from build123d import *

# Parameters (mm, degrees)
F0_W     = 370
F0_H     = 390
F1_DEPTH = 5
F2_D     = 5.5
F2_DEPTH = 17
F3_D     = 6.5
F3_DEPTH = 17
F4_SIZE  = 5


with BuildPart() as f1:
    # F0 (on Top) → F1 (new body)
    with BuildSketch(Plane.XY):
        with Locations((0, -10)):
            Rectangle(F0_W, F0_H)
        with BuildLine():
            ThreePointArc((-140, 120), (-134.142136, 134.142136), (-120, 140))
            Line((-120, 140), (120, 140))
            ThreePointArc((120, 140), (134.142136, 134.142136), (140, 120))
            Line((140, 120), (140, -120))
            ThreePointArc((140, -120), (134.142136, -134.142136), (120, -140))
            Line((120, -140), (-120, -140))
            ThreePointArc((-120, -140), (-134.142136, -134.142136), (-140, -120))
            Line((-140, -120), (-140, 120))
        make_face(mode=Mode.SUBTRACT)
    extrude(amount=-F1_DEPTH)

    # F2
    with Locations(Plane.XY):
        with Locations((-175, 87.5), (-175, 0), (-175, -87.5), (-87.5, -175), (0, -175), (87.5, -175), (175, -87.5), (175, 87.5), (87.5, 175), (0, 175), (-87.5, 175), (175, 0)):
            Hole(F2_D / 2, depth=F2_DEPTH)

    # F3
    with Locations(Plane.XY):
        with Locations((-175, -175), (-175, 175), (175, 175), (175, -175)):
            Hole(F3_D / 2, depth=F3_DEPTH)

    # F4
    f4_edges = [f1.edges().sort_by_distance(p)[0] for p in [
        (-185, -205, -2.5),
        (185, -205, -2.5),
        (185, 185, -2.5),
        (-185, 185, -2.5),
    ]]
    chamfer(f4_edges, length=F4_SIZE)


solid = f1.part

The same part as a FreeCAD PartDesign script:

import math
import FreeCAD as App
import Part
import Sketcher

V = App.Vector
Q = App.Units.Quantity


def edges_at(feature, points):
    """Names of the edges that pass closest to the given points."""
    edges = feature.Shape.Edges
    near = lambda p: min(range(len(edges)), key=lambda i: edges[i].distToShape(Part.Vertex(*p))[0])
    return sorted({f"Edge{near(p) + 1}" for p in points})

doc = App.newDocument("Part")
body = doc.addObject("PartDesign::Body", "Body")

sketch1 = body.newObject("Sketcher::SketchObject", "Sketch")
sketch1.AttachmentSupport = (doc.getObject("XY_Plane"), [""])
sketch1.MapMode = "FlatFace"
sketch1.addGeometry([
    Part.LineSegment(V(-185, 185, 0), V(-185, -205, 0)),
    Part.LineSegment(V(-185, -205, 0), V(185, -205, 0)),
    Part.LineSegment(V(185, -205, 0), V(185, 185, 0)),
    Part.LineSegment(V(185, 185, 0), V(-185, 185, 0)),
    Part.LineSegment(V(-140, -120, 0), V(-140, 120, 0)),
    Part.ArcOfCircle(Part.Circle(V(-120.000001, 120.000001, 0), V(0, 0, 1), 19.999999), math.radians(89.999996), math.radians(180.000004)),
    Part.LineSegment(V(-120, 140, 0), V(120, 140, 0)),
    Part.ArcOfCircle(Part.Circle(V(120.000001, 120.000001, 0), V(0, 0, 1), 19.999999), math.radians(-0.000004), math.radians(90.000004)),
    Part.LineSegment(V(140, 120, 0), V(140, -120, 0)),
    Part.ArcOfCircle(Part.Circle(V(120.000001, -120.000001, 0), V(0, 0, 1), 19.999999), math.radians(-90.000004), math.radians(0.000004)),
    Part.LineSegment(V(120, -140, 0), V(-120, -140, 0)),
    Part.ArcOfCircle(Part.Circle(V(-120.000001, -120.000001, 0), V(0, 0, 1), 19.999999), math.radians(179.999996), math.radians(270.000004)),
], False)
sketch1.addConstraint([
    Sketcher.Constraint("Coincident", 0, 2, 1, 1),
    Sketcher.Constraint("Coincident", 1, 2, 2, 1),
    Sketcher.Constraint("Coincident", 2, 2, 3, 1),
    Sketcher.Constraint("Coincident", 3, 2, 0, 1),
    Sketcher.Constraint("Tangent", 4, 2, 5, 2),
    Sketcher.Constraint("Tangent", 5, 1, 6, 1),
    Sketcher.Constraint("Tangent", 6, 2, 7, 2),
    Sketcher.Constraint("Tangent", 7, 1, 8, 1),
    Sketcher.Constraint("Tangent", 8, 2, 9, 2),
    Sketcher.Constraint("Tangent", 9, 1, 10, 1),
    Sketcher.Constraint("Tangent", 10, 2, 11, 2),
    Sketcher.Constraint("Tangent", 11, 1, 4, 1),
    Sketcher.Constraint("Vertical", 0),
    Sketcher.Constraint("Horizontal", 1),
    Sketcher.Constraint("Vertical", 2),
    Sketcher.Constraint("Horizontal", 3),
    Sketcher.Constraint("Vertical", 4),
    Sketcher.Constraint("Horizontal", 6),
    Sketcher.Constraint("Vertical", 8),
    Sketcher.Constraint("Horizontal", 10),
    Sketcher.Constraint("Equal", 5, 7),
    Sketcher.Constraint("Equal", 7, 9),
    Sketcher.Constraint("Equal", 9, 11),
    Sketcher.Constraint("Symmetric", 5, 3, 9, 3, -1, 1),
    Sketcher.Constraint("Equal", 10, 4),
    Sketcher.Constraint("Radius", 5, Q("19.999999 mm")),
    Sketcher.Constraint("DistanceX", 1, 1, 1, 2, Q("370 mm")),
    Sketcher.Constraint("DistanceX", 6, 1, 6, 2, Q("240 mm")),
    Sketcher.Constraint("DistanceY", 0, 2, 0, 1, Q("390 mm")),
    Sketcher.Constraint("DistanceX", 0, 2, -1, 1, Q("185 mm")),
    Sketcher.Constraint("DistanceY", 0, 2, -1, 1, Q("205 mm")),
])
pad1 = body.newObject("PartDesign::Pad", "Pad")
pad1.Profile = sketch1
pad1.Length = 5
pad1.Reversed = True

sketch2 = body.newObject("Sketcher::SketchObject", "Sketch001")
sketch2.AttachmentSupport = (doc.getObject("XY_Plane"), [""])
sketch2.MapMode = "FlatFace"
sketch2.addGeometry([
    Part.Circle(V(-175, 87.5, 0), V(0, 0, 1), 2.75),
    Part.Circle(V(-175, 0, 0), V(0, 0, 1), 2.75),
    Part.Circle(V(-175, -87.5, 0), V(0, 0, 1), 2.75),
    Part.Circle(V(-87.5, -175, 0), V(0, 0, 1), 2.75),
    Part.Circle(V(0, -175, 0), V(0, 0, 1), 2.75),
    Part.Circle(V(87.5, -175, 0), V(0, 0, 1), 2.75),
    Part.Circle(V(175, -87.5, 0), V(0, 0, 1), 2.75),
    Part.Circle(V(175, 87.5, 0), V(0, 0, 1), 2.75),
    Part.Circle(V(87.5, 175, 0), V(0, 0, 1), 2.75),
    Part.Circle(V(0, 175, 0), V(0, 0, 1), 2.75),
    Part.Circle(V(-87.5, 175, 0), V(0, 0, 1), 2.75),
    Part.Circle(V(175, 0, 0), V(0, 0, 1), 2.75),
], False)
sketch2.addConstraint([
    Sketcher.Constraint("Equal", 0, 1),
    Sketcher.Constraint("Equal", 1, 2),
    Sketcher.Constraint("Equal", 2, 3),
    Sketcher.Constraint("Equal", 3, 4),
    Sketcher.Constraint("Equal", 4, 5),
    Sketcher.Constraint("Equal", 5, 6),
    Sketcher.Constraint("Equal", 6, 7),
    Sketcher.Constraint("Equal", 7, 8),
    Sketcher.Constraint("Equal", 8, 9),
    Sketcher.Constraint("Equal", 9, 10),
    Sketcher.Constraint("Equal", 10, 11),
    Sketcher.Constraint("Symmetric", 0, 3, 6, 3, -1, 1),
    Sketcher.Constraint("Symmetric", 2, 3, 7, 3, -1, 1),
    Sketcher.Constraint("Symmetric", 3, 3, 8, 3, -1, 1),
    Sketcher.Constraint("Symmetric", 4, 3, 9, 3, -1, 1),
    Sketcher.Constraint("Symmetric", 5, 3, 10, 3, -1, 1),
    Sketcher.Constraint("Symmetric", 1, 3, 11, 3, -1, 1),
    Sketcher.Constraint("Symmetric", 3, 3, 5, 3, -2),
    Sketcher.Constraint("Symmetric", 2, 3, 6, 3, -2),
    Sketcher.Constraint("PointOnObject", 1, 3, -1),
    Sketcher.Constraint("PointOnObject", 4, 3, -2),
    Sketcher.Constraint("Horizontal", 3, 3, 4, 3),
    Sketcher.Constraint("Vertical", 0, 3, 1, 3),
    Sketcher.Constraint("Diameter", 0, Q("5.5 mm")),
    Sketcher.Constraint("DistanceX", 0, 3, -1, 1, Q("175 mm")),
    Sketcher.Constraint("DistanceY", 3, 3, -1, 1, Q("175 mm")),
    Sketcher.Constraint("DistanceY", 2, 3, 0, 3, Q("175 mm")),
    Sketcher.Constraint("DistanceX", 3, 3, 5, 3, Q("175 mm")),
])
doc.recompute()
hole = body.newObject("PartDesign::Hole", "Hole")
hole.Profile = sketch2
hole.ThreadType = "None"
hole.Diameter = 5.5
hole.DepthType = "Dimension"
hole.Depth = 17
hole.DrillPoint = "Flat"

sketch3 = body.newObject("Sketcher::SketchObject", "Sketch002")
sketch3.AttachmentSupport = (doc.getObject("XY_Plane"), [""])
sketch3.MapMode = "FlatFace"
sketch3.addGeometry([
    Part.Circle(V(-175, -175, 0), V(0, 0, 1), 3.25),
    Part.Circle(V(-175, 175, 0), V(0, 0, 1), 3.25),
    Part.Circle(V(175, 175, 0), V(0, 0, 1), 3.25),
    Part.Circle(V(175, -175, 0), V(0, 0, 1), 3.25),
], False)
sketch3.addConstraint([
    Sketcher.Constraint("Equal", 0, 1),
    Sketcher.Constraint("Equal", 1, 2),
    Sketcher.Constraint("Equal", 2, 3),
    Sketcher.Constraint("Symmetric", 0, 3, 2, 3, -1, 1),
    Sketcher.Constraint("Symmetric", 1, 3, 3, 3, -1, 1),
    Sketcher.Constraint("Symmetric", 1, 3, 2, 3, -2),
    Sketcher.Constraint("Diameter", 0, Q("6.5 mm")),
    Sketcher.Constraint("DistanceX", 0, 3, -1, 1, Q("175 mm")),
    Sketcher.Constraint("DistanceY", 0, 3, -1, 1, Q("175 mm")),
])
doc.recompute()
hole2 = body.newObject("PartDesign::Hole", "Hole001")
hole2.Profile = sketch3
hole2.ThreadType = "None"
hole2.Diameter = 6.5
hole2.DepthType = "Dimension"
hole2.Depth = 17
hole2.DrillPoint = "Flat"
doc.recompute()

chamfer = body.newObject("PartDesign::Chamfer", "Chamfer")
chamfer.Base = (hole2, edges_at(hole2, [
    (-185, -205, -2.5),
    (185, -205, -2.5),
    (185, 185, -2.5),
    (-185, 185, -2.5),
]))
chamfer.Size = 5

doc.recompute()
